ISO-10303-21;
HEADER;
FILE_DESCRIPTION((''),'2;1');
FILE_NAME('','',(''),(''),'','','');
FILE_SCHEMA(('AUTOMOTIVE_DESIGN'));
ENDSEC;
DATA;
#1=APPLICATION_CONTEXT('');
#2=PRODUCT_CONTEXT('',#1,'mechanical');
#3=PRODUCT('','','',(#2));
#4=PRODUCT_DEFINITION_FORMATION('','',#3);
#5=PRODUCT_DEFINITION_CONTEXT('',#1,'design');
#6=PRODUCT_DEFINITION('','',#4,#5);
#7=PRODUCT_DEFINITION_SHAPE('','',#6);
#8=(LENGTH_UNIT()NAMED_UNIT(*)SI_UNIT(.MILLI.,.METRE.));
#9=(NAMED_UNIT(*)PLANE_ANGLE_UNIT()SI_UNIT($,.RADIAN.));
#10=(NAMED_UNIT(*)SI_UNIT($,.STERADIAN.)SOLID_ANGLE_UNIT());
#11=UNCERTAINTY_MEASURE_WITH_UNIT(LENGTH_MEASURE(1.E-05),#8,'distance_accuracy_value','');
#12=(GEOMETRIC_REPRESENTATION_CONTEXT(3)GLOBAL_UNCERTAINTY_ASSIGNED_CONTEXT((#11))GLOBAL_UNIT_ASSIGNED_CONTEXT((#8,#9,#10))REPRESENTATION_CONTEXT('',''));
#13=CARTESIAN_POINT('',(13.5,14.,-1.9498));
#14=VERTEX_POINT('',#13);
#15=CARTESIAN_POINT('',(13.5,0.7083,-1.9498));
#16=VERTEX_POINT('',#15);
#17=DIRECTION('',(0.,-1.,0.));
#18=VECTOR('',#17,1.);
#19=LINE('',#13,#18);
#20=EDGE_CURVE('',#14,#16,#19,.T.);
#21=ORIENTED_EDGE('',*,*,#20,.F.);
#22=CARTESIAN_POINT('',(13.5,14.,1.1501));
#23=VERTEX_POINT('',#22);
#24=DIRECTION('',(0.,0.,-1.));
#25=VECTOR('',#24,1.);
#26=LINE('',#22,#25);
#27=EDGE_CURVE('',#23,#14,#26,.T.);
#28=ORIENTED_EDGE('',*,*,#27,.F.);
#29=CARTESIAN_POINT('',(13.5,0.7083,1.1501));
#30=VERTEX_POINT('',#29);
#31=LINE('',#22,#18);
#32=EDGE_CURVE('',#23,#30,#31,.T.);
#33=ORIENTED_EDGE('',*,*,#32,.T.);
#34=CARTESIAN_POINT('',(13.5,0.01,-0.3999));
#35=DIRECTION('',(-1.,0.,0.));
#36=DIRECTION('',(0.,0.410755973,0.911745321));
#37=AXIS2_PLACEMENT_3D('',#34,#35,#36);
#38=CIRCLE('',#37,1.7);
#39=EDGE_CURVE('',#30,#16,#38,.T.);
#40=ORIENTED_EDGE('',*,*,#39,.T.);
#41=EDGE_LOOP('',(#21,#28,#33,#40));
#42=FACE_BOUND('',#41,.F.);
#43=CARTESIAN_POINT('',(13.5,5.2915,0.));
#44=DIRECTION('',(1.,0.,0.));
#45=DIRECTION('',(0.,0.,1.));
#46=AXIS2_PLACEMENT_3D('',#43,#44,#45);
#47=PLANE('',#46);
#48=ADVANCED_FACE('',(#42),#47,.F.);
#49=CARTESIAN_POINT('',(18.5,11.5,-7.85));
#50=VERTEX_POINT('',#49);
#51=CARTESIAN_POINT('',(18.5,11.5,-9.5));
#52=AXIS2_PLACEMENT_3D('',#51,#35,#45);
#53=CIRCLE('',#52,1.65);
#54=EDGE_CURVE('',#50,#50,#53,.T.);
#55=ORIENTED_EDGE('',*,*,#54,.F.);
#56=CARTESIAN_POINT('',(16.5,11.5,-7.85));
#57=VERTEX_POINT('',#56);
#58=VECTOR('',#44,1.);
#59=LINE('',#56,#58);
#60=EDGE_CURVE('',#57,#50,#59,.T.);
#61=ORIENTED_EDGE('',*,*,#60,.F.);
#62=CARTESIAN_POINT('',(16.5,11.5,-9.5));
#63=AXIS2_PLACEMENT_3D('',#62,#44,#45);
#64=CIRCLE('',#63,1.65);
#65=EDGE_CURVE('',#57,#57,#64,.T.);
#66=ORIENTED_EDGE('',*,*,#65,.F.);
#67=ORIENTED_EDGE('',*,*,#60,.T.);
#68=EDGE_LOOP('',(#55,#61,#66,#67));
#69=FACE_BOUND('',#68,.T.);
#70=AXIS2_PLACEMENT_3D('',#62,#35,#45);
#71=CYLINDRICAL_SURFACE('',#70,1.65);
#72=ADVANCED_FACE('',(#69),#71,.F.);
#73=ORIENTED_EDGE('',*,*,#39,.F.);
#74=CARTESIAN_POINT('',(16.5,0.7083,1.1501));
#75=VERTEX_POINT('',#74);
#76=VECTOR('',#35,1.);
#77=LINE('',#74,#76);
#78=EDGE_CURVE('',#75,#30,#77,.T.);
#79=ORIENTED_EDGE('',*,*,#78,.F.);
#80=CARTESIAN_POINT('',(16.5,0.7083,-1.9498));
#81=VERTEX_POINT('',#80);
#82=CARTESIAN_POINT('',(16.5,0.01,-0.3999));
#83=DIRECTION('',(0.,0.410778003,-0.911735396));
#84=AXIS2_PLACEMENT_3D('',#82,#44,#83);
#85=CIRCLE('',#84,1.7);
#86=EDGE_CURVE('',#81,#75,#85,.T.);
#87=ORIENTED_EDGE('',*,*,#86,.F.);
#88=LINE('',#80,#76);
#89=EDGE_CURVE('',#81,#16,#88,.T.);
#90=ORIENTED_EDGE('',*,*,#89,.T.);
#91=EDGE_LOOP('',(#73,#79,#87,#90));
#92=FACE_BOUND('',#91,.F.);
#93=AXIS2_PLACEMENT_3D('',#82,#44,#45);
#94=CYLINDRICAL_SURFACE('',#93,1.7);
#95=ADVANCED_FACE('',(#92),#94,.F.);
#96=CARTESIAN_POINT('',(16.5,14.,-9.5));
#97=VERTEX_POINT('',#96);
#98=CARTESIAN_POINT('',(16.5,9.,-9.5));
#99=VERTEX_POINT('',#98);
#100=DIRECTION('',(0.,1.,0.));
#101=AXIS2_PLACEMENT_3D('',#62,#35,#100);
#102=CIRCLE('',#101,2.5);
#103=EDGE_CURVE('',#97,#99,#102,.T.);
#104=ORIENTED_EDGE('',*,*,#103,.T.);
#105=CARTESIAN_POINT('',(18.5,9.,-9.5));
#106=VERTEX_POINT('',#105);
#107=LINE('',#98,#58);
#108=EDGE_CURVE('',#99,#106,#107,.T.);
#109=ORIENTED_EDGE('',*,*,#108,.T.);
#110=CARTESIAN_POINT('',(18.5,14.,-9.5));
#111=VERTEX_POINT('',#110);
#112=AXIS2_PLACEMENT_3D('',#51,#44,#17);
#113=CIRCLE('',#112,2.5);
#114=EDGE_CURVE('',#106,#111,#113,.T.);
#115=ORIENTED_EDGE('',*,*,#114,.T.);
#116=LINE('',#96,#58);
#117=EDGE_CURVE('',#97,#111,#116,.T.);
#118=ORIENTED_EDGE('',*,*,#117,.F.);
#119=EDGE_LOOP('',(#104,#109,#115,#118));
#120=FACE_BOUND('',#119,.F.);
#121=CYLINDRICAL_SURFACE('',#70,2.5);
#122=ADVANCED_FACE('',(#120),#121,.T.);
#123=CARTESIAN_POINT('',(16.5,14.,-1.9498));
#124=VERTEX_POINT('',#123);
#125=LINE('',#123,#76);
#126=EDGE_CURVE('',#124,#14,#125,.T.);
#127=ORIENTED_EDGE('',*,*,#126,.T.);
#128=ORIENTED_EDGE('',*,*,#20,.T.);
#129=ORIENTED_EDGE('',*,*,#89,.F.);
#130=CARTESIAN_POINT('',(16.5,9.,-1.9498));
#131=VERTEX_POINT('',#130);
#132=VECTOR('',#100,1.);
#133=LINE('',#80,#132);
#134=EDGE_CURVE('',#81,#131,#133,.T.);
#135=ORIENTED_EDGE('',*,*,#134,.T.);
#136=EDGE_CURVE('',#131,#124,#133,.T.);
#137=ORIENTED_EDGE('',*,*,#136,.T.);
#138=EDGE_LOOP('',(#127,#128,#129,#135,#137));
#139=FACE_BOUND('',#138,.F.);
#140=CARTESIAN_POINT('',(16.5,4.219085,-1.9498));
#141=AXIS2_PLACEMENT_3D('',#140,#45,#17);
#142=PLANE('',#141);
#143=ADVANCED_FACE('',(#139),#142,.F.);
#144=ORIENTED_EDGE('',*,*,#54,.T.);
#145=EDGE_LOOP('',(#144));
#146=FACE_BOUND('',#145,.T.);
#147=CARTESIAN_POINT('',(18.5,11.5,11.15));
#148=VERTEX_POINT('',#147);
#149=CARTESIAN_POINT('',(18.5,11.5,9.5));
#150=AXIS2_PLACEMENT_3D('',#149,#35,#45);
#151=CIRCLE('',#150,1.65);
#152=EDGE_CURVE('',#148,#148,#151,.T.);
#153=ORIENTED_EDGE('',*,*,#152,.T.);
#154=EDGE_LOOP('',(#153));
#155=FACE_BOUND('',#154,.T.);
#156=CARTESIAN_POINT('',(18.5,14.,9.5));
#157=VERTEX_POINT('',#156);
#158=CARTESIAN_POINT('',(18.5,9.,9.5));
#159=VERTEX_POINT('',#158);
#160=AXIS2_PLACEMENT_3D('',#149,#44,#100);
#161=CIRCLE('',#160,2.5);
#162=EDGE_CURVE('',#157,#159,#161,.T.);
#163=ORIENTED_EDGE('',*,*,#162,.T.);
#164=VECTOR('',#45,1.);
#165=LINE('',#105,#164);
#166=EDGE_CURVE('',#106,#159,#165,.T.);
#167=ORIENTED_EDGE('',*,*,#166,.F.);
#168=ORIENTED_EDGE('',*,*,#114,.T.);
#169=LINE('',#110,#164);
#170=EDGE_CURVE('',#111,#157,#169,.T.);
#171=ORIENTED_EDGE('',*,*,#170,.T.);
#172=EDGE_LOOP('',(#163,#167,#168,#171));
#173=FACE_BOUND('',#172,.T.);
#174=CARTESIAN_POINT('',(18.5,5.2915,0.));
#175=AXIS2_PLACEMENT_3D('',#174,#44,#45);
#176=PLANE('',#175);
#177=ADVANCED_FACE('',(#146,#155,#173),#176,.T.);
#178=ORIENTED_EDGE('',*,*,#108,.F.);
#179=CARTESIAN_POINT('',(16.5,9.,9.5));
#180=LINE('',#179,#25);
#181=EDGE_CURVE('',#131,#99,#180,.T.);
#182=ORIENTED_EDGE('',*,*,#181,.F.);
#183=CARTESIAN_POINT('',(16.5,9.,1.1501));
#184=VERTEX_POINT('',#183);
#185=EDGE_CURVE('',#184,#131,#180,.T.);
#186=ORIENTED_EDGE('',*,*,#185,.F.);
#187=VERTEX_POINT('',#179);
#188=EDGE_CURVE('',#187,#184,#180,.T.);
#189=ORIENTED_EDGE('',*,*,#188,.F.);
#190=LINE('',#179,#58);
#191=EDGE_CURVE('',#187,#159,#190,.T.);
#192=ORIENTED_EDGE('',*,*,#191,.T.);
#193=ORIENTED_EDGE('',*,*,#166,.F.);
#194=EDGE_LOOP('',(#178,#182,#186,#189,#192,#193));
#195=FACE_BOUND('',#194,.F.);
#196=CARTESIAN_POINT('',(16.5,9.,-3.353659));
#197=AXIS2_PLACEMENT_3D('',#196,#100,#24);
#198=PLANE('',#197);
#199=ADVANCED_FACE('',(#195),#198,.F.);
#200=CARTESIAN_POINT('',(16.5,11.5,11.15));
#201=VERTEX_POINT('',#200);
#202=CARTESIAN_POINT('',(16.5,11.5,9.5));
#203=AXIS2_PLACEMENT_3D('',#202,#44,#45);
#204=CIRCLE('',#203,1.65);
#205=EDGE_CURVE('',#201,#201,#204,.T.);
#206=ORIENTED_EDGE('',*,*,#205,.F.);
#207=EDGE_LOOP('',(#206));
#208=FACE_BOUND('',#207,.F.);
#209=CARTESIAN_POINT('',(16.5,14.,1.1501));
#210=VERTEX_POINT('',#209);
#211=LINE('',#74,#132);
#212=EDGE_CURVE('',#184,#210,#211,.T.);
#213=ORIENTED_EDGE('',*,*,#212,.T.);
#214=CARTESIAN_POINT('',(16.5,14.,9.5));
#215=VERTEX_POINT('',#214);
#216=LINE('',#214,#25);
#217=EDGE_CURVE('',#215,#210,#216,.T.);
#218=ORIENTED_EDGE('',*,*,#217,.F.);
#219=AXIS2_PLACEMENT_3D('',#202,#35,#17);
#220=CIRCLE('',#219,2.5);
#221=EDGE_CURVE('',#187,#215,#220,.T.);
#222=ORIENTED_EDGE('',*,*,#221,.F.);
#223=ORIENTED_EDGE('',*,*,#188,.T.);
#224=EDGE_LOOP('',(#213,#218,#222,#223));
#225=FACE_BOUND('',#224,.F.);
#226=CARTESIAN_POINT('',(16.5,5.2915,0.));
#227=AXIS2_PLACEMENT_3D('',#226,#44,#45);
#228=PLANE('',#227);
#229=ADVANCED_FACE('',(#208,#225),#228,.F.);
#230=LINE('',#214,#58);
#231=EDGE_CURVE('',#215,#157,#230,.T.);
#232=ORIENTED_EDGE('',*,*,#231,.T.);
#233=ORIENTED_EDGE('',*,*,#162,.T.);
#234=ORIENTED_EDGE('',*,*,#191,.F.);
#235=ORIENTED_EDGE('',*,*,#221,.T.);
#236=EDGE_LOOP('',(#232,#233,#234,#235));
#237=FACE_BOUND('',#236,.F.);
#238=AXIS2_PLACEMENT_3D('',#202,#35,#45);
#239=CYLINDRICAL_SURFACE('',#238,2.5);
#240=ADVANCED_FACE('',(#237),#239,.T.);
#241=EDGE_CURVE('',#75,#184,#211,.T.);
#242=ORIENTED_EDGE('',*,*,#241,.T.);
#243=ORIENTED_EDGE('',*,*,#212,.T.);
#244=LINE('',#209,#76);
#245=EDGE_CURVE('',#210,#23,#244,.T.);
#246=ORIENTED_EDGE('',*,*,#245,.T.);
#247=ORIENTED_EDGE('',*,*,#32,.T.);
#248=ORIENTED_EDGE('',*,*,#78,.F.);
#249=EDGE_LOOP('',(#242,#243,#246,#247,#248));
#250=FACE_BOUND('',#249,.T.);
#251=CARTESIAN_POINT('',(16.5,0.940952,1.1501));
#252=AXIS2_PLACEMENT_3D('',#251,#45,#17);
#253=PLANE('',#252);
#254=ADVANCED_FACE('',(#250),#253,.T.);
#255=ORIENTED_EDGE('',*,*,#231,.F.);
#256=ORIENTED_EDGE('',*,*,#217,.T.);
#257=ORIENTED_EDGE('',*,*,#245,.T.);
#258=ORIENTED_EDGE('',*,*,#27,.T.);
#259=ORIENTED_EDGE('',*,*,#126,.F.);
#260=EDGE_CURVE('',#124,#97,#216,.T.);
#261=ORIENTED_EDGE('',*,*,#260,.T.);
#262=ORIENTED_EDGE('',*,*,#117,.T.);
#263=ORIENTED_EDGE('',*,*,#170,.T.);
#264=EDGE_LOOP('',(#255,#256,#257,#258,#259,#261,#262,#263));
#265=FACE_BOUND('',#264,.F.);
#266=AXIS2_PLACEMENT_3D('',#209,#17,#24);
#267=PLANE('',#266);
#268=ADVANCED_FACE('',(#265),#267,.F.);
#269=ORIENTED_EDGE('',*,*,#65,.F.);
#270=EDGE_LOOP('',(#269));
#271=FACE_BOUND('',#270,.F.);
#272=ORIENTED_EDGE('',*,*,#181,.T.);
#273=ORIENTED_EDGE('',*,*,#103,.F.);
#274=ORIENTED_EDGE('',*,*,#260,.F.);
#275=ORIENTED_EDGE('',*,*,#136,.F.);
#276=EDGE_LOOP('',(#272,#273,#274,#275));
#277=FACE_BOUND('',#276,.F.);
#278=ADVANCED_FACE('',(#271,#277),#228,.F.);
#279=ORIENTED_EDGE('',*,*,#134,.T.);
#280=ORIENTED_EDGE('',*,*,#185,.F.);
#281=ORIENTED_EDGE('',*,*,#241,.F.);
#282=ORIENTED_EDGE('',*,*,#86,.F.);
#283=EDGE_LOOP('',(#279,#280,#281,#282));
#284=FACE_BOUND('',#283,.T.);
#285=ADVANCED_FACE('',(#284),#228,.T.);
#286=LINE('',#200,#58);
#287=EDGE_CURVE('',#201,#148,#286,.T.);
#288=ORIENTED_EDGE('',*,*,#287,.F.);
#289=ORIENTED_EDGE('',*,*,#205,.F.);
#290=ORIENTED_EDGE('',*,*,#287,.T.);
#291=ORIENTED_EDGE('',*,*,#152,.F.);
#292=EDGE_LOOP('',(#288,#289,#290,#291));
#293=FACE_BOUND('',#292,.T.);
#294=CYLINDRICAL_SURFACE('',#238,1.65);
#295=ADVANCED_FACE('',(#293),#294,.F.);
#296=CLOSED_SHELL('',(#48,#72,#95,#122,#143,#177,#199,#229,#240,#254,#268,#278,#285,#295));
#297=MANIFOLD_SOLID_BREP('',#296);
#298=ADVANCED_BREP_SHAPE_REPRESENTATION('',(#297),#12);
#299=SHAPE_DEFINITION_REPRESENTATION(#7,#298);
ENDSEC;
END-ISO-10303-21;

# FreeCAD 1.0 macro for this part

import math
import FreeCAD as App
import Part
import Sketcher

V = App.Vector

doc = App.newDocument("Part")
body = doc.addObject("PartDesign::Body", "Body")

sketch1 = doc.addObject("Sketcher::SketchObject", "Sketch")
body.addObject(sketch1)
sketch1.AttachmentSupport = (doc.YZ_Plane, [""])
sketch1.MapMode = "FlatFace"
sketch1.AttachmentOffset = App.Placement(V(0, 0, 16.5), App.Rotation())
sketch1.addGeometry(Part.ArcOfCircle(Part.Circle(V(0.01, -0.3999, 0), V(0, 0, 1), 1.7), math.radians(-65.746283), math.radians(65.747667)), False)
sketch1.addGeometry(Part.LineSegment(V(0.7083, -1.9498, 0), V(14, -1.9498, 0)), False)
sketch1.addGeometry(Part.LineSegment(V(14, -1.9498, 0), V(14, 1.1501, 0)), False)
sketch1.addGeometry(Part.LineSegment(V(14, 1.1501, 0), V(0.7083, 1.1501, 0)), False)
sketch1.addConstraint(Sketcher.Constraint("Coincident", 0, 1, 1, 1))
sketch1.addConstraint(Sketcher.Constraint("Coincident", 1, 2, 2, 1))
sketch1.addConstraint(Sketcher.Constraint("Coincident", 2, 2, 3, 1))
sketch1.addConstraint(Sketcher.Constraint("Coincident", 3, 2, 0, 2))
sketch1.addConstraint(Sketcher.Constraint("Horizontal", 1))
sketch1.addConstraint(Sketcher.Constraint("Vertical", 2))
sketch1.addConstraint(Sketcher.Constraint("Horizontal", 3))
sketch1.addConstraint(Sketcher.Constraint("Vertical", 0, 1, 3, 2))
sketch1.addConstraint(Sketcher.Constraint("Radius", 0, 1.7))
sketch1.addConstraint(Sketcher.Constraint("DistanceY", 0, 3, -1, 1, 0.4))
sketch1.addConstraint(Sketcher.Constraint("DistanceY", 2, 1, 2, 2, 3.1))
sketch1.addConstraint(Sketcher.Constraint("DistanceX", -1, 1, 1, 2, 14.0))
sketch1.addConstraint(Sketcher.Constraint("DistanceX", -1, 1, 0, 3, 0.01))
pad1 = doc.addObject("PartDesign::Pad", "Pad")
body.addObject(pad1)
pad1.Profile = sketch1
pad1.Length = 3
pad1.Reversed = True

sketch2 = doc.addObject("Sketcher::SketchObject", "Sketch001")
body.addObject(sketch2)
sketch2.AttachmentSupport = (doc.YZ_Plane, [""])
sketch2.MapMode = "FlatFace"
sketch2.AttachmentOffset = App.Placement(V(0, 0, 16.5), App.Rotation())
sketch2.addGeometry(Part.ArcOfCircle(Part.Circle(V(11.5, -9.5, 0), V(0, 0, 1), 2.5), math.radians(180), math.radians(360)), False)
sketch2.addGeometry(Part.LineSegment(V(14, -9.5, 0), V(14, 9.5, 0)), False)
sketch2.addGeometry(Part.ArcOfCircle(Part.Circle(V(11.5, 9.5, 0), V(0, 0, 1), 2.5), math.radians(0), math.radians(180)), False)
sketch2.addGeometry(Part.LineSegment(V(9, 9.5, 0), V(9, -9.5, 0)), False)
sketch2.addGeometry(Part.Circle(V(11.5, -9.5, 0), V(0, 0, 1), 1.65), False)
sketch2.addGeometry(Part.Circle(V(11.5, 9.5, 0), V(0, 0, 1), 1.65), False)
sketch2.addConstraint(Sketcher.Constraint("Tangent", 0, 2, 1, 1))
sketch2.addConstraint(Sketcher.Constraint("Tangent", 1, 2, 2, 1))
sketch2.addConstraint(Sketcher.Constraint("Tangent", 2, 2, 3, 1))
sketch2.addConstraint(Sketcher.Constraint("Tangent", 3, 2, 0, 1))
sketch2.addConstraint(Sketcher.Constraint("Vertical", 1))
sketch2.addConstraint(Sketcher.Constraint("Vertical", 3))
sketch2.addConstraint(Sketcher.Constraint("Coincident", 4, 3, 0, 3))
sketch2.addConstraint(Sketcher.Constraint("Coincident", 5, 3, 2, 3))
sketch2.addConstraint(Sketcher.Constraint("Equal", 4, 5))
sketch2.addConstraint(Sketcher.Constraint("Diameter", 4, 3.3))
sketch2.addConstraint(Sketcher.Constraint("Radius", 0, 2.5))
sketch2.addConstraint(Sketcher.Constraint("DistanceY", 1, 1, 1, 2, 19.0))
sketch2.addConstraint(Sketcher.Constraint("DistanceY", 0, 3, -1, 1, 9.5))
sketch2.addConstraint(Sketcher.Constraint("DistanceX", -1, 1, 0, 2, 14.0))
pad2 = doc.addObject("PartDesign::Pad", "Pad001")
body.addObject(pad2)
pad2.Profile = sketch2
pad2.Length = 2

doc.recompute()
